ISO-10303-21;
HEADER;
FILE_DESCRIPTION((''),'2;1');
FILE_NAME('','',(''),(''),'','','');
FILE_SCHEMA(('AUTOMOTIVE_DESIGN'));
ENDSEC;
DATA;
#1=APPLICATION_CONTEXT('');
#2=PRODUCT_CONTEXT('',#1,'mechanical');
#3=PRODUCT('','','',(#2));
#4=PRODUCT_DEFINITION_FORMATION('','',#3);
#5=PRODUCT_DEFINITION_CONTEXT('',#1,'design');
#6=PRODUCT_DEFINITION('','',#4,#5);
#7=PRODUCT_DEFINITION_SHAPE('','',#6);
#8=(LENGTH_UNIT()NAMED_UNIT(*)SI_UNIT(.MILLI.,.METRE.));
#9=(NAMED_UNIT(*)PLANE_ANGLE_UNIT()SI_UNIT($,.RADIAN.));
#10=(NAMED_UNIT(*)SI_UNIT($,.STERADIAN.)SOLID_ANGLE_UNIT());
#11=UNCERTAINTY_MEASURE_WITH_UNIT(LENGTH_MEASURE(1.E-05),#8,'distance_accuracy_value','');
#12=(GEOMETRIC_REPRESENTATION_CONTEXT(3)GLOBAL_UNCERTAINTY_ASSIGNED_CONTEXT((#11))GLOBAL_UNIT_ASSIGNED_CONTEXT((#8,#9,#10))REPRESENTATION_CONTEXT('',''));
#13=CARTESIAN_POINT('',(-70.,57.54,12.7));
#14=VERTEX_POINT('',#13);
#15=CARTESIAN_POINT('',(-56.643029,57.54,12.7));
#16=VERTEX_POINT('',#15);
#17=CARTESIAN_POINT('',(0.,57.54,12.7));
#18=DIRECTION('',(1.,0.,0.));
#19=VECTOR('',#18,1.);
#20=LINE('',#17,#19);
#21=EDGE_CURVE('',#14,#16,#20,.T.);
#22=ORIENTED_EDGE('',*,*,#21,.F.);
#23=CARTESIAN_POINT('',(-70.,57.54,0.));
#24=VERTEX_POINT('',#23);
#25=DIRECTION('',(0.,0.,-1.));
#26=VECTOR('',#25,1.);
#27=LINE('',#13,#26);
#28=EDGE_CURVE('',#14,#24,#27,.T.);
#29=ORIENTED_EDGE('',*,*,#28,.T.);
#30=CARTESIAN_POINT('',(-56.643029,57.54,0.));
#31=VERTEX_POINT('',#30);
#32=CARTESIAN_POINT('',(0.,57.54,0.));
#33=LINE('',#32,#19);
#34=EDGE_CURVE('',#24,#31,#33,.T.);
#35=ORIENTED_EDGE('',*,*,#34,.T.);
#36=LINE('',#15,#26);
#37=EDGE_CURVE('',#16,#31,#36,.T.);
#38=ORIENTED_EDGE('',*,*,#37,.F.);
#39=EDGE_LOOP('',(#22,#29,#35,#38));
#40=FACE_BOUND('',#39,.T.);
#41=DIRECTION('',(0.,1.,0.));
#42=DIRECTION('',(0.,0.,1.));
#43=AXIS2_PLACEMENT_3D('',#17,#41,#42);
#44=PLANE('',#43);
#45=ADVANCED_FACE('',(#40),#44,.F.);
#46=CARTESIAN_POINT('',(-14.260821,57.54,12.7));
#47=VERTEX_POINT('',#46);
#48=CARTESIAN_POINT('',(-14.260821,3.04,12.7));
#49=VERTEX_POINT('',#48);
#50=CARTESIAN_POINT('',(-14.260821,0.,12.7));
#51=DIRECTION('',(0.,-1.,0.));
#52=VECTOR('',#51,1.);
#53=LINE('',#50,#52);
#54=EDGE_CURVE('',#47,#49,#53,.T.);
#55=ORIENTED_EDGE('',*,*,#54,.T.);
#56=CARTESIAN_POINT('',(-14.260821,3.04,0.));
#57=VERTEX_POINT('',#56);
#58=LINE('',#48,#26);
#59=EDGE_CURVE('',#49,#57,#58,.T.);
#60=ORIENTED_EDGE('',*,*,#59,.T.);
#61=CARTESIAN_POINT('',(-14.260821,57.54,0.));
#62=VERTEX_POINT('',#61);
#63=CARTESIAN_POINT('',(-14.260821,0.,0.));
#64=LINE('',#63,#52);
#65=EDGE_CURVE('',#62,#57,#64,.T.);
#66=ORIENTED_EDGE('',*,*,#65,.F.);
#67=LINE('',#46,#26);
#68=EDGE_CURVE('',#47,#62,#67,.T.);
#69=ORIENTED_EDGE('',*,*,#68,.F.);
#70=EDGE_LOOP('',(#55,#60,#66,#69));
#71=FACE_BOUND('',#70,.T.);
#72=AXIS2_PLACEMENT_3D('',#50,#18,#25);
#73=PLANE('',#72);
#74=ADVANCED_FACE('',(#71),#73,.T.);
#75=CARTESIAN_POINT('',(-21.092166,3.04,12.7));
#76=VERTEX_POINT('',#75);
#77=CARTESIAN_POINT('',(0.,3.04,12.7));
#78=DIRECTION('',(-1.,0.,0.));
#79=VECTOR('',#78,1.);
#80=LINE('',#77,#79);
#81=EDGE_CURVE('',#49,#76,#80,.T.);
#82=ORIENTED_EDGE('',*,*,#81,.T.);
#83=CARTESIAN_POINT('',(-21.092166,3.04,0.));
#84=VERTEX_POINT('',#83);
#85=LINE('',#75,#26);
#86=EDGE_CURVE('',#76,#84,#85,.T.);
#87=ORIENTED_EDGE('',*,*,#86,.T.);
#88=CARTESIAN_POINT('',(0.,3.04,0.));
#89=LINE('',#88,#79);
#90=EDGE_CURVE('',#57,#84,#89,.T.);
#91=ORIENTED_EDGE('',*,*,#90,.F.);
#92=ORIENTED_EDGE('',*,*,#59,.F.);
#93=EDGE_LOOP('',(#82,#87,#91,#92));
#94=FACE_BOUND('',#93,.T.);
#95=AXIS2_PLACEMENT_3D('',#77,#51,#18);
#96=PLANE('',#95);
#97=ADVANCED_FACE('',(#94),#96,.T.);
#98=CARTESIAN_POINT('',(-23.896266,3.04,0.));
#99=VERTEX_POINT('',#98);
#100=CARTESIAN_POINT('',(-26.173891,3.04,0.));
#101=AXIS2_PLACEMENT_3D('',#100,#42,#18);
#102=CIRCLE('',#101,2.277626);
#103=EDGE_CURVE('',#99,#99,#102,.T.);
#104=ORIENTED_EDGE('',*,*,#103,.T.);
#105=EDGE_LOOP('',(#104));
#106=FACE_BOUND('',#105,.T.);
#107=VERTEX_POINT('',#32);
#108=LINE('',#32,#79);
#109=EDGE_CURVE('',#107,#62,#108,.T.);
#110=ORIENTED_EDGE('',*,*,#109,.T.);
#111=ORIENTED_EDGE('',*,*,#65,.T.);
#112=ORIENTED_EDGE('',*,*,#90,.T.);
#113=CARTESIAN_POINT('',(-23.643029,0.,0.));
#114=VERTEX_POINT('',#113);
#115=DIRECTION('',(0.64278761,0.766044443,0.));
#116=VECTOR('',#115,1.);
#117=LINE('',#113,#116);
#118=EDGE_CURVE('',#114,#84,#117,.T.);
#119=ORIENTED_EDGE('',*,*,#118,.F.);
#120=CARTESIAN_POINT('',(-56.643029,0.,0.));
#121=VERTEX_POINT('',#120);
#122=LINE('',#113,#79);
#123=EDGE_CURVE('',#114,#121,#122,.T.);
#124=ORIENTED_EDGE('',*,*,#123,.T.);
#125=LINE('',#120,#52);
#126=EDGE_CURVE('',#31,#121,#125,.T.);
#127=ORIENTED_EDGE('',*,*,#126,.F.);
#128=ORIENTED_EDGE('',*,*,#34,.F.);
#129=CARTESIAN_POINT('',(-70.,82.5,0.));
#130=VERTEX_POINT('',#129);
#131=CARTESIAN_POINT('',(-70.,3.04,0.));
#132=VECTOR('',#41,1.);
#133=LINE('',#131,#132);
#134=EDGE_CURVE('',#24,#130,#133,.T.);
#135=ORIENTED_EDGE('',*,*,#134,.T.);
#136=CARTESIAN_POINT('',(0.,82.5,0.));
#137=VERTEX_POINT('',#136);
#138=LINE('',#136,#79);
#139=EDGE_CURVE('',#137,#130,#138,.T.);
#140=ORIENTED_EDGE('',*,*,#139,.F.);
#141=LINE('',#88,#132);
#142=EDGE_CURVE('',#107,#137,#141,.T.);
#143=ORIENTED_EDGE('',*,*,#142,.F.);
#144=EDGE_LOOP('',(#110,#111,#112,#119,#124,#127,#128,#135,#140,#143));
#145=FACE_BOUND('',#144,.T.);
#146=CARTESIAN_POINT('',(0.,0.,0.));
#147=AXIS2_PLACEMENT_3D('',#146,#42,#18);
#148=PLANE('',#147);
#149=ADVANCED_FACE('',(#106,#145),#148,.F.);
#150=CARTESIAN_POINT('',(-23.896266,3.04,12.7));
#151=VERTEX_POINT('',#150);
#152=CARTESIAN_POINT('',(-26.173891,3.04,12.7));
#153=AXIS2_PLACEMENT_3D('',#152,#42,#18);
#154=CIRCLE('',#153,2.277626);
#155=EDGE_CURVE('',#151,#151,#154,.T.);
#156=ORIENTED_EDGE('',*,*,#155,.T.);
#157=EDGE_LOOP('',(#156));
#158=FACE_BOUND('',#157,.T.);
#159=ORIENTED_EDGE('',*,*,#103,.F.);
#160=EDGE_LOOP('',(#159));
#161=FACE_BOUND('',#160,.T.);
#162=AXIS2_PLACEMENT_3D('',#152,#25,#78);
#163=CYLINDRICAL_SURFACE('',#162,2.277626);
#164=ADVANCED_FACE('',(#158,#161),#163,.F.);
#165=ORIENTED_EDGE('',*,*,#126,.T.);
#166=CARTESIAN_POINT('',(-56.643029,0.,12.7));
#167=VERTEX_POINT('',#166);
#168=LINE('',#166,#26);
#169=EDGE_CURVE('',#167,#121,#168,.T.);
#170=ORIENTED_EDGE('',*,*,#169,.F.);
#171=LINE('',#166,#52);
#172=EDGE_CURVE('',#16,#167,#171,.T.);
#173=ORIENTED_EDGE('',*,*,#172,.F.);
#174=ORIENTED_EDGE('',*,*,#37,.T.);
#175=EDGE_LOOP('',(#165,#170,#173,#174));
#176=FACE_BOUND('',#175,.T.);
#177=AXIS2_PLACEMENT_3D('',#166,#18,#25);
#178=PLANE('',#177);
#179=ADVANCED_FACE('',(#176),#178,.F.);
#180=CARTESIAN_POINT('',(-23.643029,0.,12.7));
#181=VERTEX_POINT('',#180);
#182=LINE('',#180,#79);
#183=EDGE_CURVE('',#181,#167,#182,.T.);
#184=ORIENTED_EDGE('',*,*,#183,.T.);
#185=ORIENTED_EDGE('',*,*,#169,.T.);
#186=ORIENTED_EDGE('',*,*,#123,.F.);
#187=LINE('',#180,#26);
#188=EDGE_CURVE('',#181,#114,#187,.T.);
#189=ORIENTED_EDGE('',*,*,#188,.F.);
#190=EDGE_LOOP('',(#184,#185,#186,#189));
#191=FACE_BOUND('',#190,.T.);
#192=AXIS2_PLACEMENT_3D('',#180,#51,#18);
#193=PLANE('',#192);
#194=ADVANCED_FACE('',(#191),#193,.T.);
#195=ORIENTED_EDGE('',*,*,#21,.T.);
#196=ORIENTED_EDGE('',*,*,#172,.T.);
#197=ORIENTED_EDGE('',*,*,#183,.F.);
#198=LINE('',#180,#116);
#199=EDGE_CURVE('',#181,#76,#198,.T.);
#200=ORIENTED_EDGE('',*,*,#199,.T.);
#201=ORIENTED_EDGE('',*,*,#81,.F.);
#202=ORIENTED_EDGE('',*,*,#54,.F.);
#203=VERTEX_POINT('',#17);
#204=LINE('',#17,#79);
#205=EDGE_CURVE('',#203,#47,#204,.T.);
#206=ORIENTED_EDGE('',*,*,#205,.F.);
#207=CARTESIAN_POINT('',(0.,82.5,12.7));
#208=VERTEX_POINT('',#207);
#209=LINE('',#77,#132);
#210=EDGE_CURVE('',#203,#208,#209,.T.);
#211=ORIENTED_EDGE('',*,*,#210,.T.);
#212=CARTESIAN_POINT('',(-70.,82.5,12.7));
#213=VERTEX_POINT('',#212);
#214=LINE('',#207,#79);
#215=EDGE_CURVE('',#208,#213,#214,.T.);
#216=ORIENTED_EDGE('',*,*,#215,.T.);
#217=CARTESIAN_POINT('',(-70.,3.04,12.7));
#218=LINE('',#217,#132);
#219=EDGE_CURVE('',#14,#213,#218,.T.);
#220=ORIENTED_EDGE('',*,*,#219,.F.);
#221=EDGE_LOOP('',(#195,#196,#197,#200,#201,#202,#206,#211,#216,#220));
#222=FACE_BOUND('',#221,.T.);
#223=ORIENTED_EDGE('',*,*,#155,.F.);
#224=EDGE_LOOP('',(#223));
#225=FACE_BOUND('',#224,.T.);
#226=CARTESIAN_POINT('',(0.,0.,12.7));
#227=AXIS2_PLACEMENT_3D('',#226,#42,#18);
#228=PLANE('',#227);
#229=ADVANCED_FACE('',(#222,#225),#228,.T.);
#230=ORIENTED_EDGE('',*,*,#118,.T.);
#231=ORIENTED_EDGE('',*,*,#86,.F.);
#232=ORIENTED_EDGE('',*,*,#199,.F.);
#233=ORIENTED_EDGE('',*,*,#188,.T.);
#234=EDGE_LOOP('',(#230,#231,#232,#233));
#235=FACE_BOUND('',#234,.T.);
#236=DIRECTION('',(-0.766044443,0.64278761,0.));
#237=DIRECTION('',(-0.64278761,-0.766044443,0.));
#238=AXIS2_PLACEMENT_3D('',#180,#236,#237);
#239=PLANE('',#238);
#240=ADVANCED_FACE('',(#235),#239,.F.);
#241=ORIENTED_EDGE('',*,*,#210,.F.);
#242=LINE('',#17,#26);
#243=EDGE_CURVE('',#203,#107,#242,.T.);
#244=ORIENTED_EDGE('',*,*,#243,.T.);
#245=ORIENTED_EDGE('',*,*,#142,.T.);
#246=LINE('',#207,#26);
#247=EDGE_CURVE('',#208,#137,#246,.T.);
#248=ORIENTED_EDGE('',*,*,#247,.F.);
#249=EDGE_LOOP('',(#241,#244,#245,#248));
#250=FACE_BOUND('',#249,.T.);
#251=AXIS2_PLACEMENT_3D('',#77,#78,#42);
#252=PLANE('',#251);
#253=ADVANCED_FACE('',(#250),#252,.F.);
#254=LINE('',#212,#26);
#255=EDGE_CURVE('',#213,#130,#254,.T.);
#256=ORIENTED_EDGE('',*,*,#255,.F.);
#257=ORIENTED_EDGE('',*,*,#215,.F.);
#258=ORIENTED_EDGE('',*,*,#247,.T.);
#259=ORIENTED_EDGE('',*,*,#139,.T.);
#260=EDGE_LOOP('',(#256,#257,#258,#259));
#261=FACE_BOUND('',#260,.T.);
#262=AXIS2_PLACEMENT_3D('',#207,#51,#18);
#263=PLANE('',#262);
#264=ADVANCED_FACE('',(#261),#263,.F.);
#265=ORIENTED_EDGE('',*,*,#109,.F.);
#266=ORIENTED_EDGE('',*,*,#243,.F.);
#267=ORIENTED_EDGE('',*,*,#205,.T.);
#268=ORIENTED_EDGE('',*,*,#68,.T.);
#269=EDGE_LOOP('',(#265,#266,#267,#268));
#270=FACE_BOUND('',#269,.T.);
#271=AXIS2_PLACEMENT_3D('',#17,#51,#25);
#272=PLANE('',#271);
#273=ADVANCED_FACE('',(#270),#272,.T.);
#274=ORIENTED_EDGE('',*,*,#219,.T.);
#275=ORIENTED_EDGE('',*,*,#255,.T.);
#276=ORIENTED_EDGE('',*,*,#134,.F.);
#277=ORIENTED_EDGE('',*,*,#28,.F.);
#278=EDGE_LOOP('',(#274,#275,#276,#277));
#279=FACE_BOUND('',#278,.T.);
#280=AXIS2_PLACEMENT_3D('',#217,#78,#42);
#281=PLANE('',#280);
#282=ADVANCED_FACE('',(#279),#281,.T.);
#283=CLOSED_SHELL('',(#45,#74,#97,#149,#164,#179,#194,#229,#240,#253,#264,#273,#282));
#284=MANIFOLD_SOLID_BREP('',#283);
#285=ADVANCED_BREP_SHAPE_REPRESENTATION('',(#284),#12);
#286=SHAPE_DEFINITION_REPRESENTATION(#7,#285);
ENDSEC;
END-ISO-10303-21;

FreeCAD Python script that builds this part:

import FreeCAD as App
import Part
import Sketcher
from FreeCAD import Vector
Q = App.Units.Quantity


def add_polygon(sketch, points):
    """Adds a closed chain of lines whose ends are joined by coincident constraints."""
    first, n = sketch.GeometryCount, len(points)
    for a, b in zip(points, points[1:] + points[:1]):
        sketch.addGeometry(Part.LineSegment(App.Vector(*a, 0), App.Vector(*b, 0)), False)
    for i in range(n):
        sketch.addConstraint(Sketcher.Constraint("Coincident", first + i, 2, first + (i + 1) % n, 1))

doc = App.newDocument("Part")
body = doc.addObject("PartDesign::Body", "Body")

# Sketch on XY plane
sketch1 = body.newObject("Sketcher::SketchObject", "Sketch")
sketch1.AttachmentSupport = (doc.getObject("XY_Plane"), [""])
sketch1.MapMode = "FlatFace"
add_polygon(sketch1, [(-70, 3), (-59.2, 3), (-56.6, 0), (-23.6, 0), (-21.1, 3), (0, 3), (0, 82.5), (-70, 82.5)])  # lines 0-7
sketch1.addConstraint([
    Sketcher.Constraint("Horizontal", 0),
    Sketcher.Constraint("Horizontal", 2),
    Sketcher.Constraint("Horizontal", 4),
    Sketcher.Constraint("Vertical", 5),
    Sketcher.Constraint("Horizontal", 6),
    Sketcher.Constraint("Vertical", 7),
    Sketcher.Constraint("PointOnObject", 1, 2, -1),
    Sketcher.Constraint("PointOnObject", 4, 2, -2),
    Sketcher.Constraint("Horizontal", 0, 2, 3, 2),
    Sketcher.Constraint("Equal", 1, 3),
    Sketcher.Constraint("DistanceX", 2, 1, 2, 2, Q("33 mm")),
    Sketcher.Constraint("DistanceX", 6, 2, 6, 1, Q("70 mm")),
    Sketcher.Constraint("Angle", 1, Q("-50 deg")),
    Sketcher.Constraint("DistanceY", 5, 1, 5, 2, Q("79.46 mm")),
    Sketcher.Constraint("DistanceY", -1, 1, 5, 2, Q("82.5 mm")),
    Sketcher.Constraint("DistanceX", 0, 1, 0, 2, Q("10.806109 mm")),
])
pad1 = body.newObject("PartDesign::Pad", "Pad")
pad1.Profile = sketch1
pad1.Length = 12.7

# Sketch on XY plane
sketch2 = body.newObject("Sketcher::SketchObject", "Sketch001")
sketch2.AttachmentSupport = (doc.getObject("XY_Plane"), [""])
sketch2.MapMode = "FlatFace"
add_polygon(sketch2, [(-70, 57.5), (-70, 3), (-59.2, 3), (-56.6, 0), (-56.6, 57.5)])  # lines 0-4
add_polygon(sketch2, [(-14.3, 57.5), (-14.3, 3), (0, 3), (0, 57.5)])  # lines 5-8
sketch2.addGeometry(Part.Circle(Vector(-26.2, 3, 0), Vector(0, 0, 1), 2.3), False)  # 9
sketch2.addConstraint([
    Sketcher.Constraint("Vertical", 0),
    Sketcher.Constraint("Horizontal", 1),
    Sketcher.Constraint("Vertical", 3),
    Sketcher.Constraint("Horizontal", 4),
    Sketcher.Constraint("Vertical", 5),
    Sketcher.Constraint("Horizontal", 6),
    Sketcher.Constraint("Vertical", 7),
    Sketcher.Constraint("Horizontal", 8),
    Sketcher.Constraint("PointOnObject", 2, 2, -1),
    Sketcher.Constraint("PointOnObject", 6, 2, -2),
    Sketcher.Constraint("Horizontal", 9, 3, 0, 2),
    Sketcher.Constraint("Horizontal", 1, 2, 5, 2),
    Sketcher.Constraint("Horizontal", 4, 2, 7, 2),
    Sketcher.Constraint("Angle", 2, Q("-50 deg")),
    Sketcher.Constraint("DistanceY", 0, 2, 0, 1, Q("54.5 mm")),
    Sketcher.Constraint("DistanceX", 0, 2, -1, 1, Q("70 mm")),
    Sketcher.Constraint("DistanceY", 3, 1, 3, 2, Q("57.54 mm")),
    Sketcher.Constraint("Diameter", 9, Q("4.555251 mm")),
    Sketcher.Constraint("DistanceX", 1, 2, 9, 3, Q("33.02 mm")),
    Sketcher.Constraint("DistanceX", 1, 1, 1, 2, Q("10.806109 mm")),
    Sketcher.Constraint("DistanceX", 6, 1, 6, 2, Q("14.260821 mm")),
])
pocket1 = body.newObject("PartDesign::Pocket", "Pocket")
pocket1.Profile = sketch2
pocket1.Length = 12.7
pocket1.Reversed = True

doc.recompute()
